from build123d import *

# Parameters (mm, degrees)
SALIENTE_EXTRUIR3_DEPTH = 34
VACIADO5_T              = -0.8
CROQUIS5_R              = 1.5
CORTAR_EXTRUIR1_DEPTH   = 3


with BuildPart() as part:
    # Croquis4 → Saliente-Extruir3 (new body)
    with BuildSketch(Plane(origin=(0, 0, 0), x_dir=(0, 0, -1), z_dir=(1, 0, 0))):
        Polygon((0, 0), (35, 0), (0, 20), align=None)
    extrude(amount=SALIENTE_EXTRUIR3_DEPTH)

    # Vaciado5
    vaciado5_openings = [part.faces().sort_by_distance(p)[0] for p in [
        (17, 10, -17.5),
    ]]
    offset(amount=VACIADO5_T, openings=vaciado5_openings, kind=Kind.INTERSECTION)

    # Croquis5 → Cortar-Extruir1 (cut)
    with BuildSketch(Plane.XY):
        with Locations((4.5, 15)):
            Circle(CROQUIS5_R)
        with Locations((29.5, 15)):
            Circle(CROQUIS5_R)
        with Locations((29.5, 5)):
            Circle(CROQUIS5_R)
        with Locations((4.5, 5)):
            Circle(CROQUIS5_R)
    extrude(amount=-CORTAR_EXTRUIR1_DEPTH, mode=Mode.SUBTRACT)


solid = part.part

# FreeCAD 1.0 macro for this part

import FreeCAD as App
import Part
import Sketcher

V = App.Vector


def faces_at(feature, points):
    """Names of the faces that lie closest to the given points."""
    faces = feature.Shape.Faces
    near = lambda p: min(range(len(faces)), key=lambda i: faces[i].distToShape(Part.Vertex(*p))[0])
    return sorted({f"Face{near(p) + 1}" for p in points})


def add_polygon(sketch, points):
    """Adds a closed chain of lines whose ends are joined by coincident constraints."""
    first, n = sketch.GeometryCount, len(points)
    for a, b in zip(points, points[1:] + points[:1]):
        sketch.addGeometry(Part.LineSegment(App.Vector(*a, 0), App.Vector(*b, 0)), False)
    for i in range(n):
        sketch.addConstraint(Sketcher.Constraint("Coincident", first + i, 2, first + (i + 1) % n, 1))

doc = App.newDocument("Part")
body = doc.addObject("PartDesign::Body", "Body")

sketch1 = body.newObject("Sketcher::SketchObject", "Sketch")
sketch1.AttachmentSupport = (doc.getObject("YZ_Plane"), [""])
sketch1.MapMode = "FlatFace"
add_polygon(sketch1, [(0, 0), (0, -35), (20, 0)])
sketch1.addConstraint(Sketcher.Constraint("Vertical", 0))
sketch1.addConstraint(Sketcher.Constraint("Horizontal", 2))
sketch1.addConstraint(Sketcher.Constraint("Coincident", 2, 2, -1, 1))
sketch1.addConstraint(Sketcher.Constraint("DistanceX", 2, 2, 2, 1, 20.0))
sketch1.addConstraint(Sketcher.Constraint("DistanceY", 0, 2, 0, 1, 35.0))
pad1 = body.newObject("PartDesign::Pad", "Pad")
pad1.Profile = sketch1
pad1.Length = 34
doc.recompute()

thickness = body.newObject("PartDesign::Thickness", "Thickness")
thickness.Base = (pad1, faces_at(pad1, [(17, 10, -17.5)]))
thickness.Value = 0.8
thickness.Reversed = True
thickness.Join = "Intersection"

sketch2 = body.newObject("Sketcher::SketchObject", "Sketch001")
sketch2.AttachmentSupport = (doc.getObject("XY_Plane"), [""])
sketch2.MapMode = "FlatFace"
sketch2.addGeometry(Part.Circle(V(4.5, 15, 0), V(0, 0, 1), 1.5), False)
sketch2.addGeometry(Part.Circle(V(29.5, 15, 0), V(0, 0, 1), 1.5), False)
sketch2.addGeometry(Part.Circle(V(29.5, 5, 0), V(0, 0, 1), 1.5), False)
sketch2.addGeometry(Part.Circle(V(4.5, 5, 0), V(0, 0, 1), 1.5), False)
sketch2.addConstraint(Sketcher.Constraint("Equal", 0, 1))
sketch2.addConstraint(Sketcher.Constraint("Equal", 1, 2))
sketch2.addConstraint(Sketcher.Constraint("Equal", 2, 3))
sketch2.addConstraint(Sketcher.Constraint("Horizontal", 0, 3, 1, 3))
sketch2.addConstraint(Sketcher.Constraint("Horizontal", 2, 3, 3, 3))
sketch2.addConstraint(Sketcher.Constraint("Vertical", 1, 3, 2, 3))
sketch2.addConstraint(Sketcher.Constraint("Vertical", 0, 3, 3, 3))
sketch2.addConstraint(Sketcher.Constraint("Diameter", 0, 3.0))
sketch2.addConstraint(Sketcher.Constraint("DistanceY", -1, 1, 0, 3, 15.0))
sketch2.addConstraint(Sketcher.Constraint("DistanceY", -1, 1, 2, 3, 5.0))
sketch2.addConstraint(Sketcher.Constraint("DistanceX", 0, 3, 1, 3, 25.0))
sketch2.addConstraint(Sketcher.Constraint("DistanceX", -1, 1, 0, 3, 4.5))
pocket1 = body.newObject("PartDesign::Pocket", "Pocket")
pocket1.Profile = sketch2
pocket1.Length = 3

doc.recompute()
